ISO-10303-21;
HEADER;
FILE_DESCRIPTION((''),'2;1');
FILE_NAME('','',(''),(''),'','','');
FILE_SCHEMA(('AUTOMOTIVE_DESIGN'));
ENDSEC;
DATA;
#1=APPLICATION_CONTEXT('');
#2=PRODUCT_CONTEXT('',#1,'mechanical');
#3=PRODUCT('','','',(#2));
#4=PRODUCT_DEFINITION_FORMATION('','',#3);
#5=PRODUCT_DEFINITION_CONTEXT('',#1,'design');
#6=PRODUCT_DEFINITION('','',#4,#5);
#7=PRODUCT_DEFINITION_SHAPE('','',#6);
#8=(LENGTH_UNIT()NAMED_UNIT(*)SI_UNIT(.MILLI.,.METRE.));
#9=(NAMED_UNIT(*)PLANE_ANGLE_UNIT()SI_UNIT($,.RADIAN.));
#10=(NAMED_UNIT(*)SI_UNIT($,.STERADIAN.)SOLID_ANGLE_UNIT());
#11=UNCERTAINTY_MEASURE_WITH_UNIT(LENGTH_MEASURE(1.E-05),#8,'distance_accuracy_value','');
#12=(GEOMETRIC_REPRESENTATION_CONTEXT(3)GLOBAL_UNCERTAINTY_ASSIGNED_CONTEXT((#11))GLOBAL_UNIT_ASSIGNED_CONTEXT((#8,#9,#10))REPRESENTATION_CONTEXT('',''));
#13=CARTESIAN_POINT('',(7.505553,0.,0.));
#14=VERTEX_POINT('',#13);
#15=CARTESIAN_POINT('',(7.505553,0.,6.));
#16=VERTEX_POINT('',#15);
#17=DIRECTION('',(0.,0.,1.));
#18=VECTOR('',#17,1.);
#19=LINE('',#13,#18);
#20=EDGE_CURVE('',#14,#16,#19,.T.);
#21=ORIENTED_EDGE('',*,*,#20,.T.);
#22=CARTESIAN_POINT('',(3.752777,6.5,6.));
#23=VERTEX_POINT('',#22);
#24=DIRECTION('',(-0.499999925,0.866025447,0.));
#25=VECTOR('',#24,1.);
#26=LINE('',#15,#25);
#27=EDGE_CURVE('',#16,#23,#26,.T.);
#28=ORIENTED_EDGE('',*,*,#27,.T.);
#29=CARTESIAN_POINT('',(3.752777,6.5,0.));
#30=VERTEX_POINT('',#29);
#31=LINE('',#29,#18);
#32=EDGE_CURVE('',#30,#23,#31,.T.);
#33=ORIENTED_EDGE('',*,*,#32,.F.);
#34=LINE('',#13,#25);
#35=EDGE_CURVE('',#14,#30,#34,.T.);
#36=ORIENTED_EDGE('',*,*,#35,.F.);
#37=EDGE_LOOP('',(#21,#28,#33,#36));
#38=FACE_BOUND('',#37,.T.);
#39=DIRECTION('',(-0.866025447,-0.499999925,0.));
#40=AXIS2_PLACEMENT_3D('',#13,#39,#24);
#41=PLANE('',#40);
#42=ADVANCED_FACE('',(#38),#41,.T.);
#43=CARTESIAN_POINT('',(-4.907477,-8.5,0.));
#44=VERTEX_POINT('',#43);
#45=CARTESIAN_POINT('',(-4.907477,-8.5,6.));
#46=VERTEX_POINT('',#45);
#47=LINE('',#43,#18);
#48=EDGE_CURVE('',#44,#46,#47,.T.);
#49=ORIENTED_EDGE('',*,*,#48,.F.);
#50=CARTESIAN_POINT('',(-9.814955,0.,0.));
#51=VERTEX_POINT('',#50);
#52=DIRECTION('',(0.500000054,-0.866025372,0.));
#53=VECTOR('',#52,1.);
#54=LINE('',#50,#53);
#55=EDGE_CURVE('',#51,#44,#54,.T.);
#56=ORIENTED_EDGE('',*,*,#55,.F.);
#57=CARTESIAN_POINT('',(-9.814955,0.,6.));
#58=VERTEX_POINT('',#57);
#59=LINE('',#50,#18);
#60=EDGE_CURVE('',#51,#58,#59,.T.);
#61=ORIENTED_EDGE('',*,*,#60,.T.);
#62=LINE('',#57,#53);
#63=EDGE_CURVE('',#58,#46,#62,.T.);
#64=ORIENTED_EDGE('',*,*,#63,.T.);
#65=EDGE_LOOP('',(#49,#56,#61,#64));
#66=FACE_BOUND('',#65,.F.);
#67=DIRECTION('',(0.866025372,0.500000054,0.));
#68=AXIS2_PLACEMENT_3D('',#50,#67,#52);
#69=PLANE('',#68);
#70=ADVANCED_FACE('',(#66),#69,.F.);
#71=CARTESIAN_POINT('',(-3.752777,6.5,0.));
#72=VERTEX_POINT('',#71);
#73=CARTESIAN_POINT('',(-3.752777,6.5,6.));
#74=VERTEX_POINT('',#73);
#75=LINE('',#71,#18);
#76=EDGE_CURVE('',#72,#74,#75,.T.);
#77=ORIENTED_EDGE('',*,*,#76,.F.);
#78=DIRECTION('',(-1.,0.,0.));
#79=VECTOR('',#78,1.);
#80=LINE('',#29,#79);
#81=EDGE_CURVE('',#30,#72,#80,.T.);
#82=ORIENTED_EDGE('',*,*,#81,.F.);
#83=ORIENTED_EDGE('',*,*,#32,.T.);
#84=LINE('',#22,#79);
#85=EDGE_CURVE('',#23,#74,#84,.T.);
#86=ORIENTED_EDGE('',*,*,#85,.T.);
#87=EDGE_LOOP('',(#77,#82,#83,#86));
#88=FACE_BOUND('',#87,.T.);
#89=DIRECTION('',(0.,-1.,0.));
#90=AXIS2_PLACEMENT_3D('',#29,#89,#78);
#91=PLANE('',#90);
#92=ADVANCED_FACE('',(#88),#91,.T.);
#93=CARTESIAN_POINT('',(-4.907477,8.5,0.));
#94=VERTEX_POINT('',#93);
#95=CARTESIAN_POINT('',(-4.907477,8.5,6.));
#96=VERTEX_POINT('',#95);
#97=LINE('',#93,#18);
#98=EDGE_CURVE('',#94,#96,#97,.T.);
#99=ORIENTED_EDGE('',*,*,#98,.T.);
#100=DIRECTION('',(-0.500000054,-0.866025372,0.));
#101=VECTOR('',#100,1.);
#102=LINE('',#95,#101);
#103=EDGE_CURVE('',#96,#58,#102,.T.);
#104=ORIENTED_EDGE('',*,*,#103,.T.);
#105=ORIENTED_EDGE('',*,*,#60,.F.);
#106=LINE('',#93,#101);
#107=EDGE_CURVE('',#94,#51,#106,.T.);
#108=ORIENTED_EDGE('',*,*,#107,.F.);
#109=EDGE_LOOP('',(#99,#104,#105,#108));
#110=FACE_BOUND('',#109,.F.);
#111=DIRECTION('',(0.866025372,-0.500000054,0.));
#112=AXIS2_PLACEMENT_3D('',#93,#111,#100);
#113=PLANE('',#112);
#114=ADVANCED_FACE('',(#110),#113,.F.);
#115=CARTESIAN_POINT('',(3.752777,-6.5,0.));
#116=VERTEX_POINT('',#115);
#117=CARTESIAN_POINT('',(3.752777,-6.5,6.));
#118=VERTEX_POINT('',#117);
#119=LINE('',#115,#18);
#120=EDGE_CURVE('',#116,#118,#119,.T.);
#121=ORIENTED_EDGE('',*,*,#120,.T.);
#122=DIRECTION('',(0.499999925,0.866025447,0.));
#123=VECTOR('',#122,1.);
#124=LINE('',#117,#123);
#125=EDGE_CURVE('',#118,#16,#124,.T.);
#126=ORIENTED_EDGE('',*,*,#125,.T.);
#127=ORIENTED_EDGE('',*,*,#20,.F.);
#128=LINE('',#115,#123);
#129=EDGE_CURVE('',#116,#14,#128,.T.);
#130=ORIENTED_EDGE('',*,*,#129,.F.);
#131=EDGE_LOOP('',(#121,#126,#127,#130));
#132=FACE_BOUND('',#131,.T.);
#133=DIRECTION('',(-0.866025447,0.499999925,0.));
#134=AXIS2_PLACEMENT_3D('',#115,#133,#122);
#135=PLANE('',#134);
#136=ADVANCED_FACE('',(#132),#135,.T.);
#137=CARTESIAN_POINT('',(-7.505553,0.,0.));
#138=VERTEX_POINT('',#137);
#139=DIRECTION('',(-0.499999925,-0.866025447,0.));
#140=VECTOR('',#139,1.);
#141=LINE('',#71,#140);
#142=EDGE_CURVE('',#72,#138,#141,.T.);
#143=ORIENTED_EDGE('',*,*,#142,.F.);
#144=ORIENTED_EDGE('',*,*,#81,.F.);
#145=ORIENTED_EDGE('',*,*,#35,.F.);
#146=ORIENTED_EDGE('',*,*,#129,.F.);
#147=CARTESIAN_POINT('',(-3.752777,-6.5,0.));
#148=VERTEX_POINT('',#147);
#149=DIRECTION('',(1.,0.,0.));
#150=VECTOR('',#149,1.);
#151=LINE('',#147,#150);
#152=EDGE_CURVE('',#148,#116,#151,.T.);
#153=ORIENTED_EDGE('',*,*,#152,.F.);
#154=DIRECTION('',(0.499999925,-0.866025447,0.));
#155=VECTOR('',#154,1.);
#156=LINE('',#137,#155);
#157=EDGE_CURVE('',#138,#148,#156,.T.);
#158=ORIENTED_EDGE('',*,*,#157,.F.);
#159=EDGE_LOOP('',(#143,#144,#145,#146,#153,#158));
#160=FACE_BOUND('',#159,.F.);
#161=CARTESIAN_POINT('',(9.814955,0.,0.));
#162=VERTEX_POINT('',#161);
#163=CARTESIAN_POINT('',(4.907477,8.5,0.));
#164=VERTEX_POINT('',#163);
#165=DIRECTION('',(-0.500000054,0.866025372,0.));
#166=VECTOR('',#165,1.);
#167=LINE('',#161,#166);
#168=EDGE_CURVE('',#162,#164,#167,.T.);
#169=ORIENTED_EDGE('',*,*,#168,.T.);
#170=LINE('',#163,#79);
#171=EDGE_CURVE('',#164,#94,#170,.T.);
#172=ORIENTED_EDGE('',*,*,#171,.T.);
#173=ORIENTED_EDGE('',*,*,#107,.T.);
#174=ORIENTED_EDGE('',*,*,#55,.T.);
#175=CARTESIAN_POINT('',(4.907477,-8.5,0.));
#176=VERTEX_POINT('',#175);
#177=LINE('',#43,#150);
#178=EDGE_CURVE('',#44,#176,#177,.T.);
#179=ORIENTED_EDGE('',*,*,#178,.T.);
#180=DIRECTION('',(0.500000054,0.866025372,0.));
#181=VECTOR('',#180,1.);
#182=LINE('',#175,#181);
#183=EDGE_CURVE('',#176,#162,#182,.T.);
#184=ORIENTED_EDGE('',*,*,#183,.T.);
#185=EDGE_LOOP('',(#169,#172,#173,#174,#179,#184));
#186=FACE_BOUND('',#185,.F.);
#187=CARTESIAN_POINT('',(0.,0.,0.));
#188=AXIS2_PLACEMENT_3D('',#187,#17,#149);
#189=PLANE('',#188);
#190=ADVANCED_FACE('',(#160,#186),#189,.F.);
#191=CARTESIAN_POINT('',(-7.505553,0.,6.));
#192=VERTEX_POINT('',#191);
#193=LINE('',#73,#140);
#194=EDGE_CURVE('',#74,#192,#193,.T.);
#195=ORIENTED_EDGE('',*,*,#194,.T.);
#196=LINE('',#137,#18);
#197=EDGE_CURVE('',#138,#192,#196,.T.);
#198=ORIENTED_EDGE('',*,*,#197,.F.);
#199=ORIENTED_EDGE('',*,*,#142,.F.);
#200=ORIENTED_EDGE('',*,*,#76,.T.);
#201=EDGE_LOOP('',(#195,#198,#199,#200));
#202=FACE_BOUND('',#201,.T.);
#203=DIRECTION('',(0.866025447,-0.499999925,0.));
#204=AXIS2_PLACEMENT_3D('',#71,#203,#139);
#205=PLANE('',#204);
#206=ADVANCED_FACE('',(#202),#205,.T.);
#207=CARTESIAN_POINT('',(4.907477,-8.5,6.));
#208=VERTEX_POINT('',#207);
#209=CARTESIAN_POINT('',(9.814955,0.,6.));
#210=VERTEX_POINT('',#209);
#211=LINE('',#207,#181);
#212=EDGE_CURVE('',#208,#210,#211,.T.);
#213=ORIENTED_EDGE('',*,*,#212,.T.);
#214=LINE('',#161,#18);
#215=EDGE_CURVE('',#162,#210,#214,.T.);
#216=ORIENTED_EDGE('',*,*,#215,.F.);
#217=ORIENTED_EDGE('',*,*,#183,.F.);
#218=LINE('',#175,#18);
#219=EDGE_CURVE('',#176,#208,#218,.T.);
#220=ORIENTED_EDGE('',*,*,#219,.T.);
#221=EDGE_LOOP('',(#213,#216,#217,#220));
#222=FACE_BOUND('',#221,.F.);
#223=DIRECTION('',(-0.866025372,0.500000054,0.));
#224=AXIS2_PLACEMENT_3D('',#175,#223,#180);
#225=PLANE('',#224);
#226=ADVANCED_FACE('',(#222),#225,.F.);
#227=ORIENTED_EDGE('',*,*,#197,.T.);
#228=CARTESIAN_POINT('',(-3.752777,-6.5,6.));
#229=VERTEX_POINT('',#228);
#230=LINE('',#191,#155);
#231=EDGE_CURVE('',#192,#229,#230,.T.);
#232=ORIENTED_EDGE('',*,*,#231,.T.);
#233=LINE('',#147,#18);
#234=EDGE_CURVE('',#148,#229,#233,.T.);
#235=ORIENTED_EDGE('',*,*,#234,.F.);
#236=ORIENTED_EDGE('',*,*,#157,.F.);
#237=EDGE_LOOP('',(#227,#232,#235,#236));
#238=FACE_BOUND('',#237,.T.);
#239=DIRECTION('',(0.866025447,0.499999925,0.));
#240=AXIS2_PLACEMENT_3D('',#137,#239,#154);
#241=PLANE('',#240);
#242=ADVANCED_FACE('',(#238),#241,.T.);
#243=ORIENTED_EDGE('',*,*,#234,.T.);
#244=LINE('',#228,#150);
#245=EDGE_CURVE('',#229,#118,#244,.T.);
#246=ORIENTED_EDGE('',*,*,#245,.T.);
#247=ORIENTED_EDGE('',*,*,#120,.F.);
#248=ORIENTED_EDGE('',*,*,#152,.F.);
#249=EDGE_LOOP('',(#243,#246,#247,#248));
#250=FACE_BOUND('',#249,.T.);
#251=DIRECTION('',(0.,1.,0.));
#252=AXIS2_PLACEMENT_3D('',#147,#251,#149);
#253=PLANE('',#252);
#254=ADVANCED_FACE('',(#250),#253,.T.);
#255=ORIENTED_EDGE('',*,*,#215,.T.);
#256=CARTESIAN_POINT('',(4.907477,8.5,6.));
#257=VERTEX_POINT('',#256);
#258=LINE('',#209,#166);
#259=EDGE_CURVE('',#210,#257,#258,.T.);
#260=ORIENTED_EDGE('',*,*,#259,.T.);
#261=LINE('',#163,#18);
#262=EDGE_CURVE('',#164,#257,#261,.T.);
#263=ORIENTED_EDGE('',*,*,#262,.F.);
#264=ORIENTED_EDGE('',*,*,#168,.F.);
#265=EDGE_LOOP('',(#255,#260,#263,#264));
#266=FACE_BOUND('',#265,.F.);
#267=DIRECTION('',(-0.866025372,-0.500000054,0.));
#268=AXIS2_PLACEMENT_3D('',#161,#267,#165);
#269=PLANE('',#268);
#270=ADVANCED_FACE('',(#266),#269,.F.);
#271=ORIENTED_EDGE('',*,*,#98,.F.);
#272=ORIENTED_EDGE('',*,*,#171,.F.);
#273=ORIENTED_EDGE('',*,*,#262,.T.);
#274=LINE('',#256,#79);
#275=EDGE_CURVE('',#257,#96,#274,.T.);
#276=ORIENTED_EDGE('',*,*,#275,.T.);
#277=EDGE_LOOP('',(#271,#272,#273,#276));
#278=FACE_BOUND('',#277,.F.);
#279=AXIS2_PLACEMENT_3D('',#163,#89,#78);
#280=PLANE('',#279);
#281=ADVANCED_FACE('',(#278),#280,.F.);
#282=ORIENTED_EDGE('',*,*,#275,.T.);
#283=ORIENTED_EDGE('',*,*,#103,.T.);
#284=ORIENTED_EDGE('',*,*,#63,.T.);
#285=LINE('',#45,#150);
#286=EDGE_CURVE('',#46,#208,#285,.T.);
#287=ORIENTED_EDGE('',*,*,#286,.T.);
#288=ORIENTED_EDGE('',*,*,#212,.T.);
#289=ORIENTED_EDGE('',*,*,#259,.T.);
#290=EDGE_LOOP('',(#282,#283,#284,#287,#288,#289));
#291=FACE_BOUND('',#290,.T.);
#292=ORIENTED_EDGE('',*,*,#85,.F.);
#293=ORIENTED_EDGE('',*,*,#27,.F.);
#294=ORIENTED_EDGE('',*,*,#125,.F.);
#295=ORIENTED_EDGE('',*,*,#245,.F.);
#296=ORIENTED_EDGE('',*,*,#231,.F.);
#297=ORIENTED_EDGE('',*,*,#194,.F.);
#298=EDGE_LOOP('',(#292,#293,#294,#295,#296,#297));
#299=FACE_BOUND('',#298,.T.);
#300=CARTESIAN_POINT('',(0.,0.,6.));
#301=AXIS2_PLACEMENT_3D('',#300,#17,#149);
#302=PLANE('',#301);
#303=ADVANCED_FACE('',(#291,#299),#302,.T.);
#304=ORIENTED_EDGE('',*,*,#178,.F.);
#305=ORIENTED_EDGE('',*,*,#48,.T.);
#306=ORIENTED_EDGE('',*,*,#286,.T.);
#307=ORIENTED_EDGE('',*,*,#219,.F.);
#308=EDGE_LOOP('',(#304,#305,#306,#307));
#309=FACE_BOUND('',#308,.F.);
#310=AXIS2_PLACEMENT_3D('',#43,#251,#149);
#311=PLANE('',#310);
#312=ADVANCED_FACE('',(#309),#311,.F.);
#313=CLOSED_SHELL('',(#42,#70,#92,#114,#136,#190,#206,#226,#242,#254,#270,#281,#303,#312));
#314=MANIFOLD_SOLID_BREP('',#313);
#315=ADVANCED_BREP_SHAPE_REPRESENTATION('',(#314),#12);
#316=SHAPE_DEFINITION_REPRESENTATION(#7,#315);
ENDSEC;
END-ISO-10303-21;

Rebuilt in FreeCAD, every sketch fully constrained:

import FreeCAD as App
import Part
import Sketcher

V = App.Vector
Q = App.Units.Quantity

doc = App.newDocument("Part")
body = doc.addObject("PartDesign::Body", "Body")

sketch1 = body.newObject("Sketcher::SketchObject", "Sketch")
sketch1.AttachmentSupport = (doc.getObject("XY_Plane"), [""])
sketch1.MapMode = "FlatFace"
sketch1.addGeometry([
    Part.LineSegment(V(9.814955, 0, 0), V(4.907477, 8.5, 0)),
    Part.LineSegment(V(4.907477, 8.5, 0), V(-4.907477, 8.5, 0)),
    Part.LineSegment(V(-4.907477, 8.5, 0), V(-9.814955, 0, 0)),
    Part.LineSegment(V(-9.814955, 0, 0), V(-4.907477, -8.5, 0)),
    Part.LineSegment(V(-4.907477, -8.5, 0), V(4.907477, -8.5, 0)),
    Part.LineSegment(V(4.907477, -8.5, 0), V(9.814955, 0, 0)),
    Part.LineSegment(V(3.752777, 6.5, 0), V(7.505553, 0, 0)),
    Part.LineSegment(V(7.505553, 0, 0), V(3.752777, -6.5, 0)),
    Part.LineSegment(V(3.752777, -6.5, 0), V(-3.752777, -6.5, 0)),
    Part.LineSegment(V(-3.752777, -6.5, 0), V(-7.505553, 0, 0)),
    Part.LineSegment(V(-7.505553, 0, 0), V(-3.752777, 6.5, 0)),
    Part.LineSegment(V(-3.752777, 6.5, 0), V(3.752777, 6.5, 0)),
], False)
sketch1.addConstraint([
    Sketcher.Constraint("Coincident", 0, 2, 1, 1),
    Sketcher.Constraint("Coincident", 1, 2, 2, 1),
    Sketcher.Constraint("Coincident", 2, 2, 3, 1),
    Sketcher.Constraint("Coincident", 3, 2, 4, 1),
    Sketcher.Constraint("Coincident", 4, 2, 5, 1),
    Sketcher.Constraint("Coincident", 5, 2, 0, 1),
    Sketcher.Constraint("Coincident", 6, 2, 7, 1),
    Sketcher.Constraint("Coincident", 7, 2, 8, 1),
    Sketcher.Constraint("Coincident", 8, 2, 9, 1),
    Sketcher.Constraint("Coincident", 9, 2, 10, 1),
    Sketcher.Constraint("Coincident", 10, 2, 11, 1),
    Sketcher.Constraint("Coincident", 11, 2, 6, 1),
    Sketcher.Constraint("Horizontal", 1),
    Sketcher.Constraint("Horizontal", 4),
    Sketcher.Constraint("Horizontal", 8),
    Sketcher.Constraint("Horizontal", 11),
    Sketcher.Constraint("Symmetric", 0, 2, 3, 2, -1, 1),
    Sketcher.Constraint("Symmetric", 2, 2, 5, 2, -1, 1),
    Sketcher.Constraint("Symmetric", 6, 2, 9, 2, -1, 1),
    Sketcher.Constraint("Symmetric", 7, 2, 10, 2, -1, 1),
    Sketcher.Constraint("PointOnObject", 2, 2, -1),
    Sketcher.Constraint("PointOnObject", 6, 2, -1),
    Sketcher.Constraint("Parallel", 2, 5),
    Sketcher.Constraint("Parallel", 3, 6),
    Sketcher.Constraint("Parallel", 5, 7),
    Sketcher.Constraint("Parallel", 6, 9),
    Sketcher.Constraint("Vertical", 1, 2, 3, 2),
    Sketcher.Constraint("Angle", 0, Q("120.000004 deg")),
    Sketcher.Constraint("DistanceY", 3, 2, 1, 2, Q("17 mm")),
    Sketcher.Constraint("DistanceY", 4, 2, 7, 2, Q("2 mm")),
    Sketcher.Constraint("DistanceX", 6, 2, 5, 2, Q("2.309402 mm")),
    Sketcher.Constraint("DistanceX", 1, 2, 1, 1, Q("9.814954 mm")),
])
pad1 = body.newObject("PartDesign::Pad", "Pad")
pad1.Profile = sketch1
pad1.Length = 6

doc.recompute()
